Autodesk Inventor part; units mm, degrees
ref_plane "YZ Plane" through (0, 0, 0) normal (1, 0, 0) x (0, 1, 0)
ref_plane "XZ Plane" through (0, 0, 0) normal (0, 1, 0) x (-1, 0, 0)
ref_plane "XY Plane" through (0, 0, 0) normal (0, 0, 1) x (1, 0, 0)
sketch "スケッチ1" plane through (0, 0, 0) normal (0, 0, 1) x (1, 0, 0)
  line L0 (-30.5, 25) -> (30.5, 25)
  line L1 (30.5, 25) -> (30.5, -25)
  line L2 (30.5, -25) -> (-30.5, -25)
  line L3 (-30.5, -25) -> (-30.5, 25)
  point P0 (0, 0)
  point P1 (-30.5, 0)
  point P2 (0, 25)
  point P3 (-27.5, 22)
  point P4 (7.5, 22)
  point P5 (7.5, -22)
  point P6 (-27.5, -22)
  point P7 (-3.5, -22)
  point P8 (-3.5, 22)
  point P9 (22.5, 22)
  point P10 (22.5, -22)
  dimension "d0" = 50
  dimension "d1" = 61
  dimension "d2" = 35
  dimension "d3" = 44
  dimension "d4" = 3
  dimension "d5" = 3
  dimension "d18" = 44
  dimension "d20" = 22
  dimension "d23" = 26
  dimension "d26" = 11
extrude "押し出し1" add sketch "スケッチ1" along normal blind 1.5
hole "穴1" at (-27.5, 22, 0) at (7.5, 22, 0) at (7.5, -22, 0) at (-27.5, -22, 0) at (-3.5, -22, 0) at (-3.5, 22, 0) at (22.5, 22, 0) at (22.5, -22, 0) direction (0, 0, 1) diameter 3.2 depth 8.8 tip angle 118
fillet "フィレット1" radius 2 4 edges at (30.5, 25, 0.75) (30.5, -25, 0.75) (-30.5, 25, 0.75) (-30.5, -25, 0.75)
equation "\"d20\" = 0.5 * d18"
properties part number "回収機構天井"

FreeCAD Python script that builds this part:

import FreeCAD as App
import Part
import Sketcher

V = App.Vector


def edges_at(feature, points):
    """Names of the edges that pass closest to the given points."""
    edges = feature.Shape.Edges
    near = lambda p: min(range(len(edges)), key=lambda i: edges[i].distToShape(Part.Vertex(*p))[0])
    return sorted({f"Edge{near(p) + 1}" for p in points})

doc = App.newDocument("Part")
body = doc.addObject("PartDesign::Body", "Body")

sketch1 = doc.addObject("Sketcher::SketchObject", "Sketch")
body.addObject(sketch1)
sketch1.AttachmentSupport = (doc.XY_Plane, [""])
sketch1.MapMode = "FlatFace"
sketch1.addGeometry([
    Part.LineSegment(V(30.5, 25, 0), V(-30.5, 25, 0)),
    Part.LineSegment(V(-30.5, 25, 0), V(-30.5, -25, 0)),
    Part.LineSegment(V(-30.5, -25, 0), V(30.5, -25, 0)),
    Part.LineSegment(V(30.5, -25, 0), V(30.5, 25, 0)),
], False)
sketch1.addConstraint([
    Sketcher.Constraint("Coincident", 0, 2, 1, 1),
    Sketcher.Constraint("Coincident", 1, 2, 2, 1),
    Sketcher.Constraint("Coincident", 2, 2, 3, 1),
    Sketcher.Constraint("Coincident", 3, 2, 0, 1),
    Sketcher.Constraint("Horizontal", 0),
    Sketcher.Constraint("Vertical", 1),
    Sketcher.Constraint("Horizontal", 2),
    Sketcher.Constraint("Vertical", 3),
    Sketcher.Constraint("Symmetric", 0, 2, 2, 2, -1, 1),
    Sketcher.Constraint("DistanceX", 0, 2, 0, 1, 61.0),
    Sketcher.Constraint("DistanceY", 1, 2, 1, 1, 50.0),
])
pad1 = doc.addObject("PartDesign::Pad", "Pad")
body.addObject(pad1)
pad1.Profile = sketch1
pad1.Length = 1.5

sketch2 = doc.addObject("Sketcher::SketchObject", "Sketch001")
body.addObject(sketch2)
sketch2.AttachmentSupport = (doc.XY_Plane, [""])
sketch2.MapMode = "FlatFace"
sketch2.addGeometry([
    Part.Circle(V(-27.5, 22, 0), V(0, 0, 1), 1.6),
    Part.Circle(V(7.5, 22, 0), V(0, 0, 1), 1.6),
    Part.Circle(V(7.5, -22, 0), V(0, 0, 1), 1.6),
    Part.Circle(V(-27.5, -22, 0), V(0, 0, 1), 1.6),
    Part.Circle(V(-3.5, -22, 0), V(0, 0, 1), 1.6),
    Part.Circle(V(-3.5, 22, 0), V(0, 0, 1), 1.6),
    Part.Circle(V(22.5, 22, 0), V(0, 0, 1), 1.6),
    Part.Circle(V(22.5, -22, 0), V(0, 0, 1), 1.6),
], False)
sketch2.addConstraint([
    Sketcher.Constraint("Equal", 0, 1),
    Sketcher.Constraint("Equal", 1, 2),
    Sketcher.Constraint("Equal", 2, 3),
    Sketcher.Constraint("Equal", 3, 4),
    Sketcher.Constraint("Equal", 4, 5),
    Sketcher.Constraint("Equal", 5, 6),
    Sketcher.Constraint("Equal", 6, 7),
    Sketcher.Constraint("Symmetric", 1, 3, 2, 3, -1),
    Sketcher.Constraint("Symmetric", 0, 3, 3, 3, -1),
    Sketcher.Constraint("Symmetric", 4, 3, 5, 3, -1),
    Sketcher.Constraint("Symmetric", 6, 3, 7, 3, -1),
    Sketcher.Constraint("Horizontal", 0, 3, 1, 3),
    Sketcher.Constraint("Horizontal", 3, 3, 4, 3),
    Sketcher.Constraint("Horizontal", 5, 3, 6, 3),
    Sketcher.Constraint("Diameter", 0, 3.2),
    Sketcher.Constraint("DistanceY", -1, 1, 0, 3, 22.0),
    Sketcher.Constraint("DistanceX", 0, 3, 1, 3, 35.0),
    Sketcher.Constraint("DistanceX", 4, 3, 2, 3, 11.0),
    Sketcher.Constraint("DistanceX", 1, 3, 6, 3, 15.0),
    Sketcher.Constraint("DistanceX", 0, 3, -1, 1, 27.5),
])
doc.recompute()
hole = doc.addObject("PartDesign::Hole", "Hole")
body.addObject(hole)
hole.Profile = sketch2
hole.ThreadType = "None"
hole.Diameter = 3.2
hole.DepthType = "Dimension"
hole.Depth = 8.8
hole.DrillPoint = "Angled"
hole.DrillPointAngle = 118
hole.Reversed = True
doc.recompute()

fillet = doc.addObject("PartDesign::Fillet", "Fillet")
body.addObject(fillet)
fillet.Base = (hole, edges_at(hole, [
    (30.5, 25, 0.75),
    (30.5, -25, 0.75),
    (-30.5, 25, 0.75),
    (-30.5, -25, 0.75),
]))
fillet.Radius = 2

doc.recompute()
